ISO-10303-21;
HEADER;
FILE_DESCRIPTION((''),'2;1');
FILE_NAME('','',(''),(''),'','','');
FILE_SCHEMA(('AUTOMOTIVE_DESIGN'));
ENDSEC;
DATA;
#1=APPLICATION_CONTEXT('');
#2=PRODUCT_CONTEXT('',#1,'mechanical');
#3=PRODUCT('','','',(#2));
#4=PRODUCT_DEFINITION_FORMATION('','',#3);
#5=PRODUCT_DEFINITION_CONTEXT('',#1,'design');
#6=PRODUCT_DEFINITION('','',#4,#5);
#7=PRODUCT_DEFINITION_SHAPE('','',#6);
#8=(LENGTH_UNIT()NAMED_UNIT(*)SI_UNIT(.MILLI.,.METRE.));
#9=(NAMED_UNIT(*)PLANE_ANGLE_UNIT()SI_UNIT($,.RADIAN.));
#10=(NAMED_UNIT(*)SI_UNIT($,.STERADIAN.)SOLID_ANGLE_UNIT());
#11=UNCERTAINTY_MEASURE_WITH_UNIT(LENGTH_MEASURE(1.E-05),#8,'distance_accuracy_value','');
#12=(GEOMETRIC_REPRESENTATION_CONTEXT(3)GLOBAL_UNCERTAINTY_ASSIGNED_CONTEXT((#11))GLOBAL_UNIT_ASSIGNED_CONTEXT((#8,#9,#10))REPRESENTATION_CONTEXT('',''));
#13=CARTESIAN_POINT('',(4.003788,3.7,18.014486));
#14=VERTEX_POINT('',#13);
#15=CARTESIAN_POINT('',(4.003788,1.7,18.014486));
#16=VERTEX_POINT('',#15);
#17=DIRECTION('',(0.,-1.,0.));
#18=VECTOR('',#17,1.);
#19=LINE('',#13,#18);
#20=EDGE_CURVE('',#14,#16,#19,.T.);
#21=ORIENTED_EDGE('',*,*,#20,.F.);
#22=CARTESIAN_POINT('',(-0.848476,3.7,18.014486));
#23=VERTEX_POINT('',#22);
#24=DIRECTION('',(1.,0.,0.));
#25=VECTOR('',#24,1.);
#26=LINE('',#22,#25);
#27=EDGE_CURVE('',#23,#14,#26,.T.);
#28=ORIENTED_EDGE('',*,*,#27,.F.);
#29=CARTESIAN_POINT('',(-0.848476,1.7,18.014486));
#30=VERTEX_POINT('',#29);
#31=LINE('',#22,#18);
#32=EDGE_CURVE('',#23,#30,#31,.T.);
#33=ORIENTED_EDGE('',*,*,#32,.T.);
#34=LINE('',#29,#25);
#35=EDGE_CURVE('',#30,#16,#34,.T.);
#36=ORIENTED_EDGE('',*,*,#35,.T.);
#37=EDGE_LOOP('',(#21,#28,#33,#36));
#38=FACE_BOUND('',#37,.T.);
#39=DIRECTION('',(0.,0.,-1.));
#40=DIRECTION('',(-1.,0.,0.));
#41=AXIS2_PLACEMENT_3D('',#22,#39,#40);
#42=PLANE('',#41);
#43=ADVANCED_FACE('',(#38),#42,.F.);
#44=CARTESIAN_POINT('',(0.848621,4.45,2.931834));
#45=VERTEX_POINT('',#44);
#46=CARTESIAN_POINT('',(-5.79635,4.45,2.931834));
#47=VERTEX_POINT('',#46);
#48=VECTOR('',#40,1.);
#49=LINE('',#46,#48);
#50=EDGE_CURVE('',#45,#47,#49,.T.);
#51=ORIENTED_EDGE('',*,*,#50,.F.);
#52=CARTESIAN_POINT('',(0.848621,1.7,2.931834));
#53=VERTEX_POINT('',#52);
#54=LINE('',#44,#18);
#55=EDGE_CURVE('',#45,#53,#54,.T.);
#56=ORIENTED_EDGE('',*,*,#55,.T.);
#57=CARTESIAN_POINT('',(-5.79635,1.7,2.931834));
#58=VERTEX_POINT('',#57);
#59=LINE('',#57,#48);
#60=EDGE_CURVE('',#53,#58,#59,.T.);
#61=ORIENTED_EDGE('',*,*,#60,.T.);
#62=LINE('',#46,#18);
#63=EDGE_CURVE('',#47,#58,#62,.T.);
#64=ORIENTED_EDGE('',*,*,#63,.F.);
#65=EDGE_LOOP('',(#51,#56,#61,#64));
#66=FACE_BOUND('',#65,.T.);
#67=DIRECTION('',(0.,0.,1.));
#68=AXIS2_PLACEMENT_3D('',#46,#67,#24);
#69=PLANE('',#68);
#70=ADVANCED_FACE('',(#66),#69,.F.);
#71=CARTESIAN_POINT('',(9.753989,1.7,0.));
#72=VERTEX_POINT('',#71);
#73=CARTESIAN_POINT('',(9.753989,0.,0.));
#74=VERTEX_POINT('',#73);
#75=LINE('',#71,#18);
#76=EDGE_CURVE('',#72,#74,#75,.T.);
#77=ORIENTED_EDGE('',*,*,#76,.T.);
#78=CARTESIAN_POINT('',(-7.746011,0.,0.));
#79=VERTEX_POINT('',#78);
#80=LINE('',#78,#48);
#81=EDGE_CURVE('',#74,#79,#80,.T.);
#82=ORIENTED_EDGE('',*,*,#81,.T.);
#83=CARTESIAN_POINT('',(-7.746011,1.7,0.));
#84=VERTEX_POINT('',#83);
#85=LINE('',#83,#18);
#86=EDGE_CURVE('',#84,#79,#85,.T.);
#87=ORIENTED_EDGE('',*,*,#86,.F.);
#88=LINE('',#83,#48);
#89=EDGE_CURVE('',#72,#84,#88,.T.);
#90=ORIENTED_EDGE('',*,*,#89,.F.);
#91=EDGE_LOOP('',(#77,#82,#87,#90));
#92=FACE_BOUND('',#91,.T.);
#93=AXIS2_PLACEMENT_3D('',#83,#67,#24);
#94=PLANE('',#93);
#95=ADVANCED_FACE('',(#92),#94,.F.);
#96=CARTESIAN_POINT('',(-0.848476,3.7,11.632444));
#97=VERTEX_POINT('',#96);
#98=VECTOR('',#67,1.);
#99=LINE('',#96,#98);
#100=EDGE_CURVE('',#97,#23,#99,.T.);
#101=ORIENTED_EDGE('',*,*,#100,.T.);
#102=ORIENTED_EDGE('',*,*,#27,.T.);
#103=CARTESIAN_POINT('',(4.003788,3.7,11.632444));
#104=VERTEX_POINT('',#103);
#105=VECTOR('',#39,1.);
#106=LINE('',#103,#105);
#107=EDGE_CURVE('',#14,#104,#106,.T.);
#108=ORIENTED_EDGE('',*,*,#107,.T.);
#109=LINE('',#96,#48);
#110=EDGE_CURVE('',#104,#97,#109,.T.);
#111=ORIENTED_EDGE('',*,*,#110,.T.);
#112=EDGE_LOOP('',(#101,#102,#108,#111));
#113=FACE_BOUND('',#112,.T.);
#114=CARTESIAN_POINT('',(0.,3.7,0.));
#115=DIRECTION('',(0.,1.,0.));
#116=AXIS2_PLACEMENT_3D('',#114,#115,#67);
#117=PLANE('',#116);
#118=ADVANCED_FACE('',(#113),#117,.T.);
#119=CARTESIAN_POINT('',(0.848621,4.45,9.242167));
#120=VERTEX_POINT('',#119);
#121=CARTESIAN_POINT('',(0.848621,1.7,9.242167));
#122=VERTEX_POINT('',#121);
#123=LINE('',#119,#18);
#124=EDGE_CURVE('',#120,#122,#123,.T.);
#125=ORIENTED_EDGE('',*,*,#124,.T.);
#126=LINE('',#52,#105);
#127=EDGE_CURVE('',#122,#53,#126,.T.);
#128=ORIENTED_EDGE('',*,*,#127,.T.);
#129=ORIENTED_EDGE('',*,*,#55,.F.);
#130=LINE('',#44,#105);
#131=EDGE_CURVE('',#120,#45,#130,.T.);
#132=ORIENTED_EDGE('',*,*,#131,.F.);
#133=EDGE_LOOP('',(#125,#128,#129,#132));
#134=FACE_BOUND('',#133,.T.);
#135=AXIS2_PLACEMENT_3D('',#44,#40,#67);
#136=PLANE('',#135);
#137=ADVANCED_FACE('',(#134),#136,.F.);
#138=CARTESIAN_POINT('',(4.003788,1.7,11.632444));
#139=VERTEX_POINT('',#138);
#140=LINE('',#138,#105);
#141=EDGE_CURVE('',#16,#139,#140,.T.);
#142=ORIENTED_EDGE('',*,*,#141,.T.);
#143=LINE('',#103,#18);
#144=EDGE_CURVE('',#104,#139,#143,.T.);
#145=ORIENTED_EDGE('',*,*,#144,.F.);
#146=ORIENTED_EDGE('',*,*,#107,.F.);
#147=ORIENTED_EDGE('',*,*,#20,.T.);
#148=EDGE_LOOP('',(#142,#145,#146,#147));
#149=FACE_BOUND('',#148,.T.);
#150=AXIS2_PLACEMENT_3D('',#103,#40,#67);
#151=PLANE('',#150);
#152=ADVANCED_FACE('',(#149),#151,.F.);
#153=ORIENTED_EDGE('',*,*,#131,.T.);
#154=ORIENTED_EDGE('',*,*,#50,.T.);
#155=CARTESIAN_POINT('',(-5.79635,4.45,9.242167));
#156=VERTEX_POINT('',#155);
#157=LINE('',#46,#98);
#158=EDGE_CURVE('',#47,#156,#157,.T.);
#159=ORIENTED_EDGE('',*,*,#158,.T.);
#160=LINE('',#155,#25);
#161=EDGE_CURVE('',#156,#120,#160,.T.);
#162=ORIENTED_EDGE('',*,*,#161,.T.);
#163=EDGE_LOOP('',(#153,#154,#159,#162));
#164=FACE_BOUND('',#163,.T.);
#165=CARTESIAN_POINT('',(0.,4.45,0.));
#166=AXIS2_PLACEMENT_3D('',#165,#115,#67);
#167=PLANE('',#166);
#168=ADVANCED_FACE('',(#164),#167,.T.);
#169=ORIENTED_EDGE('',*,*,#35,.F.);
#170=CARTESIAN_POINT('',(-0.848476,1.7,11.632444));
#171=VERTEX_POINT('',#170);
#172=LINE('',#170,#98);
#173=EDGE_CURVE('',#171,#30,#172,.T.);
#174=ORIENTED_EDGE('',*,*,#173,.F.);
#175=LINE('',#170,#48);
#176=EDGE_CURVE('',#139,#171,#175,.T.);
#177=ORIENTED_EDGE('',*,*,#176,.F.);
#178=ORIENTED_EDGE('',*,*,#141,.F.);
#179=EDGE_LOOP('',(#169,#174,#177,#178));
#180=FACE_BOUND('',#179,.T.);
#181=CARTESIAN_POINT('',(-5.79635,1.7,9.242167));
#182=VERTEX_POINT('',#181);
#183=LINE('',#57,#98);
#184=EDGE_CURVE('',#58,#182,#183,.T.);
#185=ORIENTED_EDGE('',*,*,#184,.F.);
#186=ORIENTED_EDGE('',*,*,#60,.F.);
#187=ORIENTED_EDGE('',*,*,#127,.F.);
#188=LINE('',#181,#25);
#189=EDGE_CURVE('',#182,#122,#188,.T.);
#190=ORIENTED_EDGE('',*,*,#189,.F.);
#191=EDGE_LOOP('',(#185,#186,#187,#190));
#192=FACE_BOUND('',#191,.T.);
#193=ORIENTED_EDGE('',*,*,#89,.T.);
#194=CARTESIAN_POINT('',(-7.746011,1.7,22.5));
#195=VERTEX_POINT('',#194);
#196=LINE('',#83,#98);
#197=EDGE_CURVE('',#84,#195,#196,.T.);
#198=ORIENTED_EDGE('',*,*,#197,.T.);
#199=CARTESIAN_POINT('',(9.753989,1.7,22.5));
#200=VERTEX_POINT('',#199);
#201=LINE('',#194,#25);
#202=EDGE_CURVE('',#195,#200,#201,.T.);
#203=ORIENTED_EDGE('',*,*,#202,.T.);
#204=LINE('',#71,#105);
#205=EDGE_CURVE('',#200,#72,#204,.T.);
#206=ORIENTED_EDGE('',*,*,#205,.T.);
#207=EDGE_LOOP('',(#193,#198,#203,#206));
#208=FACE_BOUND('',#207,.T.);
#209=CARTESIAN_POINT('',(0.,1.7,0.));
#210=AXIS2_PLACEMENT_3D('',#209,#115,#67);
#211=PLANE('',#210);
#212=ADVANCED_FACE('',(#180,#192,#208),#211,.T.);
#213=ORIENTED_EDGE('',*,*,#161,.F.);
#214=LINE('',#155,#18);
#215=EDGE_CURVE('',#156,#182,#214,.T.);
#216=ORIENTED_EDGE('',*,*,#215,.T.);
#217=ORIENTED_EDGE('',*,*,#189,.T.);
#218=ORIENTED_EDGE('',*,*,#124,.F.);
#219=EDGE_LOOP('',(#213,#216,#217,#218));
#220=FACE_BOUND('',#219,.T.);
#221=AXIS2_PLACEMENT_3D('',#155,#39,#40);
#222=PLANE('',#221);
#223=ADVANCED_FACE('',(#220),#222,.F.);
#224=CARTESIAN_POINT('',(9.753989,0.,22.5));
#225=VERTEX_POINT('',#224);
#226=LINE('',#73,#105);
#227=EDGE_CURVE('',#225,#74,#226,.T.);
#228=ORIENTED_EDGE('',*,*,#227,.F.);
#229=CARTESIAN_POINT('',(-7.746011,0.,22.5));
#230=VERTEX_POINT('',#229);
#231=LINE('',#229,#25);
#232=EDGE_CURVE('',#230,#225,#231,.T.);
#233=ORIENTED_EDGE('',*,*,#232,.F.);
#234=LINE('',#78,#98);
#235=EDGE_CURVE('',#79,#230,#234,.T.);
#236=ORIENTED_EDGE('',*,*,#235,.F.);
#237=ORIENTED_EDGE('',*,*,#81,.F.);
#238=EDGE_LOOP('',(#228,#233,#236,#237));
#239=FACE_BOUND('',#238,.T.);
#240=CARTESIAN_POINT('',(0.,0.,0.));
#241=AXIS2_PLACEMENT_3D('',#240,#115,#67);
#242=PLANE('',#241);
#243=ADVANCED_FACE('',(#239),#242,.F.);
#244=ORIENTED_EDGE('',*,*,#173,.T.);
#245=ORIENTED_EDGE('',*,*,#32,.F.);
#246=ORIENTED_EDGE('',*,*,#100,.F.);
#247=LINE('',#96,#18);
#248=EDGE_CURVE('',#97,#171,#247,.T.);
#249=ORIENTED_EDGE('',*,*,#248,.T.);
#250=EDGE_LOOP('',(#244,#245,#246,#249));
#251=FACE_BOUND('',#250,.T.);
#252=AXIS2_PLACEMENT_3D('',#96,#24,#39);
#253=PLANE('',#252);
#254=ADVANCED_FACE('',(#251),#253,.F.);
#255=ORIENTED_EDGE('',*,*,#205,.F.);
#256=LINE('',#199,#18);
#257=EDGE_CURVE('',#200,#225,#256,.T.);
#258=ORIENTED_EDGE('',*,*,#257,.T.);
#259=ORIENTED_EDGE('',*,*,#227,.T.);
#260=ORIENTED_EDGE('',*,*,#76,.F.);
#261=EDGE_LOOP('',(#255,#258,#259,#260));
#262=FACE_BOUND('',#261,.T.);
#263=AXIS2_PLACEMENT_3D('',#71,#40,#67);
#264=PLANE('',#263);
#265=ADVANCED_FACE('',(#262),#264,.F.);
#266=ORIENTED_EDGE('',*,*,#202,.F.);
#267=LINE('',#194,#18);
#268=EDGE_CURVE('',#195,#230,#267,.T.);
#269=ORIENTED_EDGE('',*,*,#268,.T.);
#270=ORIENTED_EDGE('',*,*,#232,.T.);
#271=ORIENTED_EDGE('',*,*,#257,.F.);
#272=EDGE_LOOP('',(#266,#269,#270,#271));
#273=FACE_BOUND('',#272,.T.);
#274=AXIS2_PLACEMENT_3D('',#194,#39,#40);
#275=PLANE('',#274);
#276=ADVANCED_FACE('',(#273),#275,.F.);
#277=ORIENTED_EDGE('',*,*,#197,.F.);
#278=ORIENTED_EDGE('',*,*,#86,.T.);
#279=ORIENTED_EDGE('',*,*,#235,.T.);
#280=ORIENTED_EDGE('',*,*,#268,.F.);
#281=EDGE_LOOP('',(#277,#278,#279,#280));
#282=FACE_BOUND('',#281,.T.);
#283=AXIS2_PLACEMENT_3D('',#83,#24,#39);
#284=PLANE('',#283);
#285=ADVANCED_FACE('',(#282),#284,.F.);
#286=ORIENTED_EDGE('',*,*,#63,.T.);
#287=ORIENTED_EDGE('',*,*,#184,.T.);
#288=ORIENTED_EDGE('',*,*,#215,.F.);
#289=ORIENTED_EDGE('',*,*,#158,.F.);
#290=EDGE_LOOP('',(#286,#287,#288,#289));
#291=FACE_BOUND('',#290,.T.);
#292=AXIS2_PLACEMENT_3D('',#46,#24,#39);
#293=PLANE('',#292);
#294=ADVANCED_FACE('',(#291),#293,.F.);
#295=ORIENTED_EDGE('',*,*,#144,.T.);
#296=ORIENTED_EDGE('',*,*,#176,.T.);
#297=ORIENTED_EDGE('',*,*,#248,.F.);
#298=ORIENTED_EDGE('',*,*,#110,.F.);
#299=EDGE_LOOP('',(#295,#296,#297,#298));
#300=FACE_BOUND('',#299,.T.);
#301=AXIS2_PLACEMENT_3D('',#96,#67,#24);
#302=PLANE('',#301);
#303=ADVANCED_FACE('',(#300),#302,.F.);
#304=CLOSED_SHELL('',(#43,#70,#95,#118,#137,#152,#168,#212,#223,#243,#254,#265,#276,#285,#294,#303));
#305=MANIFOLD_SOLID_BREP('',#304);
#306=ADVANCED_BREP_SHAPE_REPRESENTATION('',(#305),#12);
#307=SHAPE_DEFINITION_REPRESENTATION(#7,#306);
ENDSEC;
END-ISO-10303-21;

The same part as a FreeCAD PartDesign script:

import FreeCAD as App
import Part
import Sketcher

doc = App.newDocument("Part")
body = doc.addObject("PartDesign::Body", "Body")

sketch1 = body.newObject("Sketcher::SketchObject", "Sketch")
sketch1.AttachmentSupport = (doc.getObject("XZ_Plane"), [""])
sketch1.MapMode = "FlatFace"
sketch1.addGeometry(Part.LineSegment(App.Vector(-7.746011, 0, 0), App.Vector(-7.746011, 22.5, 0)), False)
sketch1.addGeometry(Part.LineSegment(App.Vector(-7.746011, 22.5, 0), App.Vector(9.753989, 22.5, 0)), False)
sketch1.addGeometry(Part.LineSegment(App.Vector(9.753989, 22.5, 0), App.Vector(9.753989, 0, 0)), False)
sketch1.addGeometry(Part.LineSegment(App.Vector(9.753989, 0, 0), App.Vector(-7.746011, 0, 0)), False)
sketch1.addConstraint(Sketcher.Constraint("Coincident", 0, 2, 1, 1))
sketch1.addConstraint(Sketcher.Constraint("Coincident", 1, 2, 2, 1))
sketch1.addConstraint(Sketcher.Constraint("Coincident", 2, 2, 3, 1))
sketch1.addConstraint(Sketcher.Constraint("Coincident", 3, 2, 0, 1))
sketch1.addConstraint(Sketcher.Constraint("Vertical", 0))
sketch1.addConstraint(Sketcher.Constraint("Horizontal", 1))
sketch1.addConstraint(Sketcher.Constraint("Vertical", 2))
sketch1.addConstraint(Sketcher.Constraint("Horizontal", 3))
sketch1.addConstraint(Sketcher.Constraint("PointOnObject", 2, 2, -1))
sketch1.addConstraint(Sketcher.Constraint("DistanceX", 1, 1, 1, 2, 17.5))
sketch1.addConstraint(Sketcher.Constraint("DistanceY", 0, 1, 0, 2, 22.5))
sketch1.addConstraint(Sketcher.Constraint("DistanceX", 0, 2, -1, 1, 7.746011))
pad1 = body.newObject("PartDesign::Pad", "Pad")
pad1.Profile = sketch1
pad1.Length = 1.7
pad1.Reversed = True

sketch2 = body.newObject("Sketcher::SketchObject", "Sketch001")
sketch2.AttachmentSupport = (doc.getObject("XZ_Plane"), [""])
sketch2.MapMode = "FlatFace"
sketch2.AttachmentOffset = App.Placement(App.Vector(0, 0, -1.7), App.Rotation())
sketch2.addGeometry(Part.LineSegment(App.Vector(-5.79635, 2.931834, 0), App.Vector(-5.79635, 9.242167, 0)), False)
sketch2.addGeometry(Part.LineSegment(App.Vector(-5.79635, 9.242167, 0), App.Vector(0.848621, 9.242167, 0)), False)
sketch2.addGeometry(Part.LineSegment(App.Vector(0.848621, 9.242167, 0), App.Vector(0.848621, 2.931834, 0)), False)
sketch2.addGeometry(Part.LineSegment(App.Vector(0.848621, 2.931834, 0), App.Vector(-5.79635, 2.931834, 0)), False)
sketch2.addConstraint(Sketcher.Constraint("Coincident", 0, 2, 1, 1))
sketch2.addConstraint(Sketcher.Constraint("Coincident", 1, 2, 2, 1))
sketch2.addConstraint(Sketcher.Constraint("Coincident", 2, 2, 3, 1))
sketch2.addConstraint(Sketcher.Constraint("Coincident", 3, 2, 0, 1))
sketch2.addConstraint(Sketcher.Constraint("Vertical", 0))
sketch2.addConstraint(Sketcher.Constraint("Horizontal", 1))
sketch2.addConstraint(Sketcher.Constraint("Vertical", 2))
sketch2.addConstraint(Sketcher.Constraint("Horizontal", 3))
sketch2.addConstraint(Sketcher.Constraint("DistanceX", 1, 1, 1, 2, 6.644972))
sketch2.addConstraint(Sketcher.Constraint("DistanceY", 0, 1, 0, 2, 6.310333))
sketch2.addConstraint(Sketcher.Constraint("DistanceX", 0, 2, -1, 1, 5.79635))
sketch2.addConstraint(Sketcher.Constraint("DistanceY", -1, 1, 0, 2, 9.242167))
pad2 = body.newObject("PartDesign::Pad", "Pad001")
pad2.Profile = sketch2
pad2.Length = 2.75
pad2.Reversed = True

sketch3 = body.newObject("Sketcher::SketchObject", "Sketch002")
sketch3.AttachmentSupport = (doc.getObject("XZ_Plane"), [""])
sketch3.MapMode = "FlatFace"
sketch3.AttachmentOffset = App.Placement(App.Vector(0, 0, -1.7), App.Rotation())
sketch3.addGeometry(Part.LineSegment(App.Vector(-0.848476, 11.632444, 0), App.Vector(-0.848476, 18.014486, 0)), False)
sketch3.addGeometry(Part.LineSegment(App.Vector(-0.848476, 18.014486, 0), App.Vector(4.003788, 18.014486, 0)), False)
sketch3.addGeometry(Part.LineSegment(App.Vector(4.003788, 18.014486, 0), App.Vector(4.003788, 11.632444, 0)), False)
sketch3.addGeometry(Part.LineSegment(App.Vector(4.003788, 11.632444, 0), App.Vector(-0.848476, 11.632444, 0)), False)
sketch3.addConstraint(Sketcher.Constraint("Coincident", 0, 2, 1, 1))
sketch3.addConstraint(Sketcher.Constraint("Coincident", 1, 2, 2, 1))
sketch3.addConstraint(Sketcher.Constraint("Coincident", 2, 2, 3, 1))
sketch3.addConstraint(Sketcher.Constraint("Coincident", 3, 2, 0, 1))
sketch3.addConstraint(Sketcher.Constraint("Vertical", 0))
sketch3.addConstraint(Sketcher.Constraint("Horizontal", 1))
sketch3.addConstraint(Sketcher.Constraint("Vertical", 2))
sketch3.addConstraint(Sketcher.Constraint("Horizontal", 3))
sketch3.addConstraint(Sketcher.Constraint("DistanceY", 0, 1, 0, 2, 6.382041))
sketch3.addConstraint(Sketcher.Constraint("DistanceX", 1, 1, 1, 2, 4.852264))
sketch3.addConstraint(Sketcher.Constraint("DistanceX", 0, 2, -1, 1, 0.848476))
sketch3.addConstraint(Sketcher.Constraint("DistanceY", -1, 1, 0, 2, 18.014486))
pad3 = body.newObject("PartDesign::Pad", "Pad002")
pad3.Profile = sketch3
pad3.Length = 2
pad3.Reversed = True

doc.recompute()
